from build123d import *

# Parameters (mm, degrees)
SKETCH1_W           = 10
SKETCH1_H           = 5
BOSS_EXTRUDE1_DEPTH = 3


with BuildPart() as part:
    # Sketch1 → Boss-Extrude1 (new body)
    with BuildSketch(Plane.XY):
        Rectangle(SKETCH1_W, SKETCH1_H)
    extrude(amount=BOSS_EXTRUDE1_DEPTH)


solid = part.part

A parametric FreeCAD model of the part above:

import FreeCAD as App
import Part
import Sketcher
from FreeCAD import Vector


def add_polygon(sketch, points):
    """Adds a closed chain of lines whose ends are joined by coincident constraints."""
    first, n = sketch.GeometryCount, len(points)
    for a, b in zip(points, points[1:] + points[:1]):
        sketch.addGeometry(Part.LineSegment(App.Vector(*a, 0), App.Vector(*b, 0)), False)
    for i in range(n):
        sketch.addConstraint(Sketcher.Constraint("Coincident", first + i, 2, first + (i + 1) % n, 1))

doc = App.newDocument("Part")
body = doc.addObject("PartDesign::Body", "Body")

sketch1 = body.newObject("Sketcher::SketchObject", "Sketch")
sketch1.AttachmentSupport = (doc.getObject("XY_Plane"), [""])
sketch1.MapMode = "FlatFace"
add_polygon(sketch1, [(-5, 2), (-5, -2), (5, -2), (5, 2)])
sketch1.addConstraint(Sketcher.Constraint("Vertical", 0))
sketch1.addConstraint(Sketcher.Constraint("Horizontal", 1))
sketch1.addConstraint(Sketcher.Constraint("Vertical", 2))
sketch1.addConstraint(Sketcher.Constraint("Horizontal", 3))
sketch1.addConstraint(Sketcher.Constraint("Symmetric", 0, 2, 2, 2, -1, 1))
sketch1.addConstraint(Sketcher.Constraint("DistanceX", 1, 1, 1, 2, 10.0))
sketch1.addConstraint(Sketcher.Constraint("DistanceY", 0, 2, 0, 1, 5.0))
pad1 = body.newObject("PartDesign::Pad", "Pad")
pad1.Profile = sketch1
pad1.Length = 3

doc.recompute()
